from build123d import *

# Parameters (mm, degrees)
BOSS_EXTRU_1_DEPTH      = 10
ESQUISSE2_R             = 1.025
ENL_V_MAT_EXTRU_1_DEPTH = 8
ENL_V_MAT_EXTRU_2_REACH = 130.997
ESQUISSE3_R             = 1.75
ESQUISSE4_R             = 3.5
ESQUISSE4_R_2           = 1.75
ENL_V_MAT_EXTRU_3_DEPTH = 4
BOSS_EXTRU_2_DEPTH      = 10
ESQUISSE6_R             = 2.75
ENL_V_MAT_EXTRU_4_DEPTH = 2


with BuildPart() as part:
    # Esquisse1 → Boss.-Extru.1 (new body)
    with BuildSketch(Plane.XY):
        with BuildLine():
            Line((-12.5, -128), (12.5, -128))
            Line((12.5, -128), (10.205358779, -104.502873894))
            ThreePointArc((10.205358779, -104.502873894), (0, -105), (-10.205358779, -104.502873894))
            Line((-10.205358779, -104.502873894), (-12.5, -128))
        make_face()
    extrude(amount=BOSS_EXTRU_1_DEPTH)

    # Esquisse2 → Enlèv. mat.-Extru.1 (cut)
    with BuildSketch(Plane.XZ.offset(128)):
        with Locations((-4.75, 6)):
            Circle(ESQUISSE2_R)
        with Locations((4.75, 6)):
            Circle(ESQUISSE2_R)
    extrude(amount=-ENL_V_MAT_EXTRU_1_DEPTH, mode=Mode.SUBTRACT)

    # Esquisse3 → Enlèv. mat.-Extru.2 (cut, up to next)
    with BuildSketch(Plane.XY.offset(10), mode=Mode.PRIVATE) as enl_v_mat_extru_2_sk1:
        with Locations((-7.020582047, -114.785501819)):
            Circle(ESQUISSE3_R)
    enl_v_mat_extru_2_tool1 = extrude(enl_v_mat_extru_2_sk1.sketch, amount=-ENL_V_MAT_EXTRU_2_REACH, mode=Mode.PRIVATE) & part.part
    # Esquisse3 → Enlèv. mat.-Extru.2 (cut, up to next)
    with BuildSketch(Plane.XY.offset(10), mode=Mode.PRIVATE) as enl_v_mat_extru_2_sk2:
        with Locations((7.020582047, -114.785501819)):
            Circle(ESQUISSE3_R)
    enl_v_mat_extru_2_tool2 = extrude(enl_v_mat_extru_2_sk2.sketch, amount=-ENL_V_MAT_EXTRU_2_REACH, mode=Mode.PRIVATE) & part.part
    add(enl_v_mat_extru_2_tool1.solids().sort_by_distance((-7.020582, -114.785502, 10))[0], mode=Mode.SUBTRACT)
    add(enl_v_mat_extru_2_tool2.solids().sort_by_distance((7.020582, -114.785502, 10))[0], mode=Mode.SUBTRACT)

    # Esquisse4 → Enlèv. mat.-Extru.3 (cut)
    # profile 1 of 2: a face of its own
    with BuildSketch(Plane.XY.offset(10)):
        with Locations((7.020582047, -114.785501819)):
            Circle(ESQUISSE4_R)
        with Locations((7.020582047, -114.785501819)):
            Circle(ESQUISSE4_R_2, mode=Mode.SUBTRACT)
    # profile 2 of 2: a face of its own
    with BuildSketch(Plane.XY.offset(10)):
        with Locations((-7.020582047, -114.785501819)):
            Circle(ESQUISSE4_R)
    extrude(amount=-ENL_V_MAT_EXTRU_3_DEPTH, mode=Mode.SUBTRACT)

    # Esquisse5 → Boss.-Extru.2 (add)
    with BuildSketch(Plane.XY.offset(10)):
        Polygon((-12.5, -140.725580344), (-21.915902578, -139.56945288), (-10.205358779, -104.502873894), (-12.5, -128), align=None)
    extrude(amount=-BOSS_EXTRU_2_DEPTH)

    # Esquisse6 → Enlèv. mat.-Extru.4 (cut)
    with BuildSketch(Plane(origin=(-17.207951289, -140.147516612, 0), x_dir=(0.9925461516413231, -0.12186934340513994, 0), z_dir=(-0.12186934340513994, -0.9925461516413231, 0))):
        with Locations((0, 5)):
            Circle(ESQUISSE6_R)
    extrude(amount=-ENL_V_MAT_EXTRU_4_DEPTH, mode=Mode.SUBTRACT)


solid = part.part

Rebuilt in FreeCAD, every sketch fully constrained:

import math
import FreeCAD as App
import Part
import Sketcher
from FreeCAD import Vector
Q = App.Units.Quantity

doc = App.newDocument("Part")
params = doc.addObject("Spreadsheet::Sheet", "Params")
for row, (alias, value) in enumerate([
    ("sketch1_radius", "105 mm"),
    ("sketch1_width", "25 mm"),
    ("pad1_length", "10 mm"),
    ("sketch2_diameter", "2.05 mm"),
    ("pocket1_length", "8 mm"),
    ("sketch3_diameter", "3.5 mm"),
    ("sketch4_diameter", "3.5 mm"),
    ("sketch5_diameter", "7 mm"),
    ("sketch5_diameter2", "3.5 mm"),
    ("pocket4_length", "4 mm"),
    ("pad2_length", "10 mm"),
    ("sketch7_diameter", "5.5 mm"),
    ("pocket5_length", "2 mm"),
], start=1):
    params.set(f"A{row}", alias)
    params.set(f"B{row}", "=" + value)
    params.setAlias(f"B{row}", alias)

body = doc.addObject("PartDesign::Body", "Body")

# Sketch on XY plane
sketch1 = body.newObject("Sketcher::SketchObject", "Sketch")
sketch1.AttachmentSupport = (doc.getObject("XY_Plane"), [""])
sketch1.MapMode = "FlatFace"
sketch1.addGeometry([
    Part.LineSegment(Vector(-12, -128, 0), Vector(12, -128, 0)),
    Part.LineSegment(Vector(12, -128, 0), Vector(10, -105, 0)),
    Part.ArcOfCircle(Part.Circle(Vector(0, 0, 0), Vector(0, 0, 1), 105), math.radians(-95.58), math.radians(-84.42)),
    Part.LineSegment(Vector(-10, -105, 0), Vector(-12, -128, 0)),
], False)
sketch1.addConstraint([
    Sketcher.Constraint("Coincident", 0, 2, 1, 1),
    Sketcher.Constraint("Coincident", 1, 2, 2, 2),
    Sketcher.Constraint("Coincident", 2, 1, 3, 1),
    Sketcher.Constraint("Coincident", 3, 2, 0, 1),
    Sketcher.Constraint("Horizontal", 0),
    Sketcher.Constraint("Coincident", 2, 3, -1, 1),
    Sketcher.Constraint("Horizontal", 1, 2, 2, 1),
    Sketcher.Constraint("Equal", 1, 3),
    Sketcher.Constraint("Radius", 2, Q("105 mm")),
    Sketcher.Constraint("DistanceX", 0, 1, 0, 2, Q("25 mm")),
    Sketcher.Constraint("DistanceY", 0, 2, -1, 1, Q("128 mm")),
    Sketcher.Constraint("DistanceX", -1, 1, 1, 2, Q("10.205359 mm")),
])
sketch1.setExpression("Constraints[8]", "Params.sketch1_radius")
sketch1.setExpression("Constraints[9]", "Params.sketch1_width")
pad1 = body.newObject("PartDesign::Pad", "Pad")
pad1.Profile = sketch1
pad1.setExpression("Length", "Params.pad1_length")

# Sketch on XZ plane
sketch2 = body.newObject("Sketcher::SketchObject", "Sketch001")
sketch2.AttachmentSupport = (doc.getObject("XZ_Plane"), [""])
sketch2.MapMode = "FlatFace"
sketch2.AttachmentOffset = App.Placement(Vector(0, 0, 128), App.Rotation())
sketch2.addGeometry([
    Part.Circle(Vector(-4.8, 6, 0), Vector(0, 0, 1), 1),
    Part.Circle(Vector(4.8, 6, 0), Vector(0, 0, 1), 1),
], False)
sketch2.addConstraint([
    Sketcher.Constraint("Equal", 0, 1),
    Sketcher.Constraint("Symmetric", 0, 3, 1, 3, -2),
    Sketcher.Constraint("Diameter", 0, Q("2.05 mm")),
    Sketcher.Constraint("DistanceY", -1, 1, 0, 3, Q("6 mm")),
    Sketcher.Constraint("DistanceX", 0, 3, 1, 3, Q("9.5 mm")),
])
sketch2.setExpression("Constraints[2]", "Params.sketch2_diameter")
pocket1 = body.newObject("PartDesign::Pocket", "Pocket")
pocket1.Profile = sketch2
pocket1.setExpression("Length", "Params.pocket1_length")

# Sketch on XY plane
sketch3 = body.newObject("Sketcher::SketchObject", "Sketch002")
sketch3.AttachmentSupport = (doc.getObject("XY_Plane"), [""])
sketch3.MapMode = "FlatFace"
sketch3.AttachmentOffset = App.Placement(Vector(0, 0, 10), App.Rotation())
sketch3.addGeometry(Part.Circle(Vector(-7, -114.8, 0), Vector(0, 0, 1), 1.8), False)
sketch3.addConstraint([
    Sketcher.Constraint("Diameter", 0, Q("3.5 mm")),
    Sketcher.Constraint("DistanceY", 0, 3, -1, 1, Q("114.785502 mm")),
    Sketcher.Constraint("DistanceX", 0, 3, -1, 1, Q("7.020582 mm")),
])
sketch3.setExpression("Constraints[0]", "Params.sketch3_diameter")
pocket2 = body.newObject("PartDesign::Pocket", "Pocket001")
pocket2.Profile = sketch3
pocket2.Type = "UpToFirst"

# Sketch on XY plane
sketch4 = body.newObject("Sketcher::SketchObject", "Sketch003")
sketch4.AttachmentSupport = (doc.getObject("XY_Plane"), [""])
sketch4.MapMode = "FlatFace"
sketch4.AttachmentOffset = App.Placement(Vector(0, 0, 10), App.Rotation())
sketch4.addGeometry(Part.Circle(Vector(7, -114.8, 0), Vector(0, 0, 1), 1.8), False)
sketch4.addConstraint([
    Sketcher.Constraint("Diameter", 0, Q("3.5 mm")),
    Sketcher.Constraint("DistanceY", 0, 3, -1, 1, Q("114.785502 mm")),
    Sketcher.Constraint("DistanceX", -1, 1, 0, 3, Q("7.020582 mm")),
])
sketch4.setExpression("Constraints[0]", "Params.sketch4_diameter")
pocket3 = body.newObject("PartDesign::Pocket", "Pocket002")
pocket3.Profile = sketch4
pocket3.Type = "UpToFirst"

# Sketch on XY plane
sketch5 = body.newObject("Sketcher::SketchObject", "Sketch004")
sketch5.AttachmentSupport = (doc.getObject("XY_Plane"), [""])
sketch5.MapMode = "FlatFace"
sketch5.AttachmentOffset = App.Placement(Vector(0, 0, 10), App.Rotation())
sketch5.addGeometry([
    Part.Circle(Vector(7, -114.8, 0), Vector(0, 0, 1), 3.5),
    Part.Circle(Vector(7, -114.8, 0), Vector(0, 0, 1), 1.8),
    Part.Circle(Vector(-7, -114.8, 0), Vector(0, 0, 1), 3.5),
], False)
sketch5.addConstraint([
    Sketcher.Constraint("Coincident", 1, 3, 0, 3),
    Sketcher.Constraint("Equal", 0, 2),
    Sketcher.Constraint("Symmetric", 0, 3, 2, 3, -2),
    Sketcher.Constraint("Diameter", 0, Q("7 mm")),
    Sketcher.Constraint("Diameter", 1, Q("3.5 mm")),
    Sketcher.Constraint("DistanceY", 0, 3, -1, 1, Q("114.785502 mm")),
    Sketcher.Constraint("DistanceX", -1, 1, 0, 3, Q("7.020582 mm")),
])
sketch5.setExpression("Constraints[3]", "Params.sketch5_diameter")
sketch5.setExpression("Constraints[4]", "Params.sketch5_diameter2")
pocket4 = body.newObject("PartDesign::Pocket", "Pocket003")
pocket4.Profile = sketch5
pocket4.setExpression("Length", "Params.pocket4_length")

# Sketch on XY plane
sketch6 = body.newObject("Sketcher::SketchObject", "Sketch005")
sketch6.AttachmentSupport = (doc.getObject("XY_Plane"), [""])
sketch6.MapMode = "FlatFace"
sketch6.AttachmentOffset = App.Placement(Vector(0, 0, 10), App.Rotation())
sketch6.addGeometry([
    Part.LineSegment(Vector(-22, -140, 0), Vector(-12, -141, 0)),
    Part.LineSegment(Vector(-12, -141, 0), Vector(-12, -128, 0)),
    Part.LineSegment(Vector(-12, -128, 0), Vector(-10, -105, 0)),
    Part.LineSegment(Vector(-10, -105, 0), Vector(-22, -140, 0)),
], False)
sketch6.addConstraint([
    Sketcher.Constraint("Coincident", 0, 2, 1, 1),
    Sketcher.Constraint("Coincident", 1, 2, 2, 1),
    Sketcher.Constraint("Coincident", 2, 2, 3, 1),
    Sketcher.Constraint("Coincident", 3, 2, 0, 1),
    Sketcher.Constraint("Vertical", 1),
    Sketcher.Constraint("Angle", 0, Q("-7 deg")),
    Sketcher.Constraint("DistanceY", 1, 2, -1, 1, Q("128 mm")),
    Sketcher.Constraint("DistanceX", 0, 2, -1, 1, Q("12.5 mm")),
    Sketcher.Constraint("DistanceY", 1, 1, 1, 2, Q("12.72558 mm")),
    Sketcher.Constraint("DistanceX", 2, 2, -1, 1, Q("10.205359 mm")),
    Sketcher.Constraint("DistanceY", 3, 2, 2, 2, Q("35.066579 mm")),
    Sketcher.Constraint("Distance", 0, Q("9.486614 mm")),
])
pad2 = body.newObject("PartDesign::Pad", "Pad001")
pad2.Profile = sketch6
pad2.setExpression("Length", "Params.pad2_length")
pad2.Reversed = True

# Sketch on an angled plane
sketch7 = body.newObject("Sketcher::SketchObject", "Sketch006")
sketch7.Placement = App.Placement(Vector(-17.207951, -140.147517, 0), App.Rotation(Vector(0.992546152, -0.121869343, 0), Vector(0, 0, 1.000000001), Vector(-0.121869343, -0.992546152, 0), "ZXY"))
sketch7.addGeometry(Part.Circle(Vector(0, 5, 0), Vector(0, 0, 1), 2.8), False)
sketch7.addConstraint([
    Sketcher.Constraint("PointOnObject", 0, 3, -2),
    Sketcher.Constraint("Diameter", 0, Q("5.5 mm")),
    Sketcher.Constraint("DistanceY", -1, 1, 0, 3, Q("5 mm")),
])
sketch7.setExpression("Constraints[1]", "Params.sketch7_diameter")
pocket5 = body.newObject("PartDesign::Pocket", "Pocket004")
pocket5.Profile = sketch7
pocket5.setExpression("Length", "Params.pocket5_length")

doc.recompute()
